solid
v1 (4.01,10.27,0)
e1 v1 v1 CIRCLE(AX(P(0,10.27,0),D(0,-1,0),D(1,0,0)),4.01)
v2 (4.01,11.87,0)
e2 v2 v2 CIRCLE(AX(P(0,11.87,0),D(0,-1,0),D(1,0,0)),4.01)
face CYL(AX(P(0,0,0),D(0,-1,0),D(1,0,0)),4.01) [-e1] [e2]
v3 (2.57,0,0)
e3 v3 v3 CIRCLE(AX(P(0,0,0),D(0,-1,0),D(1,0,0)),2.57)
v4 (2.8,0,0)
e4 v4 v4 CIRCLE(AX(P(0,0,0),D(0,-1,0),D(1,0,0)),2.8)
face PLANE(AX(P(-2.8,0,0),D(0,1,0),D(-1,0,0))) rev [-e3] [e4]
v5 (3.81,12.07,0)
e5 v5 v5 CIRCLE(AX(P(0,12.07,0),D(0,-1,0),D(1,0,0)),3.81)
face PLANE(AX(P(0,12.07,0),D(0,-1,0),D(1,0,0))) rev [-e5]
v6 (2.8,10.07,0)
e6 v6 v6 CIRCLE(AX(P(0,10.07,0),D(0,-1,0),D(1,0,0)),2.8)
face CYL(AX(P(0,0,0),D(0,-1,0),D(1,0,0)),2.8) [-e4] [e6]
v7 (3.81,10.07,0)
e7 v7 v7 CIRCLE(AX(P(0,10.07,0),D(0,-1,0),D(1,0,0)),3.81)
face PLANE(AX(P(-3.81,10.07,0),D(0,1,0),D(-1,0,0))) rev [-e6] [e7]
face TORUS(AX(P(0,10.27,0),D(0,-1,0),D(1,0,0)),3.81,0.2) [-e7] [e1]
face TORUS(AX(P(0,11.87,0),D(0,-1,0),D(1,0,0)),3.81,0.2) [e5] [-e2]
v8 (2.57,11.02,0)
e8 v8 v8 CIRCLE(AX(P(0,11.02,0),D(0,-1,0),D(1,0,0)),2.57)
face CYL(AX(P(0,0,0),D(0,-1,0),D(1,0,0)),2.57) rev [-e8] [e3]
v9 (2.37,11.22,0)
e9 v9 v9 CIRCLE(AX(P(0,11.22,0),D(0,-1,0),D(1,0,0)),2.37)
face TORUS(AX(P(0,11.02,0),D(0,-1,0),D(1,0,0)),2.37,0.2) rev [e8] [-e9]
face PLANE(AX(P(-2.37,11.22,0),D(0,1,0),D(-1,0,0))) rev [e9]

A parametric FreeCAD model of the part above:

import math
import FreeCAD as App
import Part
import Sketcher
from FreeCAD import Vector

doc = App.newDocument("Part")
body = doc.addObject("PartDesign::Body", "Body")

sketch1 = body.newObject("Sketcher::SketchObject", "Sketch")
sketch1.AttachmentSupport = (doc.getObject("XY_Plane"), [""])
sketch1.MapMode = "FlatFace"
sketch1.addGeometry(Part.LineSegment(Vector(0, 12.07, 0), Vector(-3.81, 12.07, 0)), False)
sketch1.addGeometry(Part.ArcOfCircle(Part.Circle(Vector(-3.81, 11.87, 0), Vector(0, 0, 1), 0.2), math.radians(90), math.radians(180)), False)
sketch1.addGeometry(Part.LineSegment(Vector(-4.01, 11.87, 0), Vector(-4.01, 10.27, 0)), False)
sketch1.addGeometry(Part.ArcOfCircle(Part.Circle(Vector(-3.81, 10.27, 0), Vector(0, 0, 1), 0.2), math.radians(-180), math.radians(-90)), False)
sketch1.addGeometry(Part.LineSegment(Vector(-3.81, 10.07, 0), Vector(-2.8, 10.07, 0)), False)
sketch1.addGeometry(Part.LineSegment(Vector(-2.8, 10.07, 0), Vector(-2.8, 0, 0)), False)
sketch1.addGeometry(Part.LineSegment(Vector(-2.8, 0, 0), Vector(-2.57, 0, 0)), False)
sketch1.addGeometry(Part.LineSegment(Vector(-2.57, 0, 0), Vector(-2.57, 11.02, 0)), False)
sketch1.addGeometry(Part.ArcOfCircle(Part.Circle(Vector(-2.37, 11.02, 0), Vector(0, 0, 1), 0.2), math.radians(90), math.radians(180)), False)
sketch1.addGeometry(Part.LineSegment(Vector(-2.37, 11.22, 0), Vector(0, 11.22, 0)), False)
sketch1.addGeometry(Part.LineSegment(Vector(0, 11.22, 0), Vector(0, 12.07, 0)), False)
sketch1.addConstraint(Sketcher.Constraint("Tangent", 0, 2, 1, 1))
sketch1.addConstraint(Sketcher.Constraint("Tangent", 1, 2, 2, 1))
sketch1.addConstraint(Sketcher.Constraint("Tangent", 2, 2, 3, 1))
sketch1.addConstraint(Sketcher.Constraint("Tangent", 3, 2, 4, 1))
sketch1.addConstraint(Sketcher.Constraint("Coincident", 4, 2, 5, 1))
sketch1.addConstraint(Sketcher.Constraint("Coincident", 5, 2, 6, 1))
sketch1.addConstraint(Sketcher.Constraint("Coincident", 6, 2, 7, 1))
sketch1.addConstraint(Sketcher.Constraint("Tangent", 7, 2, 8, 2))
sketch1.addConstraint(Sketcher.Constraint("Tangent", 8, 1, 9, 1))
sketch1.addConstraint(Sketcher.Constraint("Coincident", 9, 2, 10, 1))
sketch1.addConstraint(Sketcher.Constraint("Coincident", 10, 2, 0, 1))
sketch1.addConstraint(Sketcher.Constraint("Horizontal", 0))
sketch1.addConstraint(Sketcher.Constraint("Vertical", 2))
sketch1.addConstraint(Sketcher.Constraint("Horizontal", 4))
sketch1.addConstraint(Sketcher.Constraint("Vertical", 5))
sketch1.addConstraint(Sketcher.Constraint("Horizontal", 6))
sketch1.addConstraint(Sketcher.Constraint("Vertical", 7))
sketch1.addConstraint(Sketcher.Constraint("Horizontal", 9))
sketch1.addConstraint(Sketcher.Constraint("Vertical", 10))
sketch1.addConstraint(Sketcher.Constraint("Equal", 1, 3))
sketch1.addConstraint(Sketcher.Constraint("Equal", 3, 8))
sketch1.addConstraint(Sketcher.Constraint("PointOnObject", 5, 2, -1))
sketch1.addConstraint(Sketcher.Constraint("PointOnObject", 9, 2, -2))
sketch1.addConstraint(Sketcher.Constraint("Radius", 1, 0.2))
sketch1.addConstraint(Sketcher.Constraint("DistanceY", 2, 2, 2, 1, 1.6))
sketch1.addConstraint(Sketcher.Constraint("DistanceX", 0, 2, 0, 1, 3.81))
sketch1.addConstraint(Sketcher.Constraint("DistanceX", 4, 1, 4, 2, 1.01))
sketch1.addConstraint(Sketcher.Constraint("DistanceX", 6, 1, 6, 2, 0.23))
sketch1.addConstraint(Sketcher.Constraint("DistanceY", 5, 2, 5, 1, 10.07))
sketch1.addConstraint(Sketcher.Constraint("DistanceY", 7, 1, 7, 2, 11.02))
revolution = body.newObject("PartDesign::Revolution", "Revolution")
revolution.Profile = sketch1
revolution.ReferenceAxis = (sketch1, ["V_Axis"])
revolution.Angle = 360

doc.recompute()
